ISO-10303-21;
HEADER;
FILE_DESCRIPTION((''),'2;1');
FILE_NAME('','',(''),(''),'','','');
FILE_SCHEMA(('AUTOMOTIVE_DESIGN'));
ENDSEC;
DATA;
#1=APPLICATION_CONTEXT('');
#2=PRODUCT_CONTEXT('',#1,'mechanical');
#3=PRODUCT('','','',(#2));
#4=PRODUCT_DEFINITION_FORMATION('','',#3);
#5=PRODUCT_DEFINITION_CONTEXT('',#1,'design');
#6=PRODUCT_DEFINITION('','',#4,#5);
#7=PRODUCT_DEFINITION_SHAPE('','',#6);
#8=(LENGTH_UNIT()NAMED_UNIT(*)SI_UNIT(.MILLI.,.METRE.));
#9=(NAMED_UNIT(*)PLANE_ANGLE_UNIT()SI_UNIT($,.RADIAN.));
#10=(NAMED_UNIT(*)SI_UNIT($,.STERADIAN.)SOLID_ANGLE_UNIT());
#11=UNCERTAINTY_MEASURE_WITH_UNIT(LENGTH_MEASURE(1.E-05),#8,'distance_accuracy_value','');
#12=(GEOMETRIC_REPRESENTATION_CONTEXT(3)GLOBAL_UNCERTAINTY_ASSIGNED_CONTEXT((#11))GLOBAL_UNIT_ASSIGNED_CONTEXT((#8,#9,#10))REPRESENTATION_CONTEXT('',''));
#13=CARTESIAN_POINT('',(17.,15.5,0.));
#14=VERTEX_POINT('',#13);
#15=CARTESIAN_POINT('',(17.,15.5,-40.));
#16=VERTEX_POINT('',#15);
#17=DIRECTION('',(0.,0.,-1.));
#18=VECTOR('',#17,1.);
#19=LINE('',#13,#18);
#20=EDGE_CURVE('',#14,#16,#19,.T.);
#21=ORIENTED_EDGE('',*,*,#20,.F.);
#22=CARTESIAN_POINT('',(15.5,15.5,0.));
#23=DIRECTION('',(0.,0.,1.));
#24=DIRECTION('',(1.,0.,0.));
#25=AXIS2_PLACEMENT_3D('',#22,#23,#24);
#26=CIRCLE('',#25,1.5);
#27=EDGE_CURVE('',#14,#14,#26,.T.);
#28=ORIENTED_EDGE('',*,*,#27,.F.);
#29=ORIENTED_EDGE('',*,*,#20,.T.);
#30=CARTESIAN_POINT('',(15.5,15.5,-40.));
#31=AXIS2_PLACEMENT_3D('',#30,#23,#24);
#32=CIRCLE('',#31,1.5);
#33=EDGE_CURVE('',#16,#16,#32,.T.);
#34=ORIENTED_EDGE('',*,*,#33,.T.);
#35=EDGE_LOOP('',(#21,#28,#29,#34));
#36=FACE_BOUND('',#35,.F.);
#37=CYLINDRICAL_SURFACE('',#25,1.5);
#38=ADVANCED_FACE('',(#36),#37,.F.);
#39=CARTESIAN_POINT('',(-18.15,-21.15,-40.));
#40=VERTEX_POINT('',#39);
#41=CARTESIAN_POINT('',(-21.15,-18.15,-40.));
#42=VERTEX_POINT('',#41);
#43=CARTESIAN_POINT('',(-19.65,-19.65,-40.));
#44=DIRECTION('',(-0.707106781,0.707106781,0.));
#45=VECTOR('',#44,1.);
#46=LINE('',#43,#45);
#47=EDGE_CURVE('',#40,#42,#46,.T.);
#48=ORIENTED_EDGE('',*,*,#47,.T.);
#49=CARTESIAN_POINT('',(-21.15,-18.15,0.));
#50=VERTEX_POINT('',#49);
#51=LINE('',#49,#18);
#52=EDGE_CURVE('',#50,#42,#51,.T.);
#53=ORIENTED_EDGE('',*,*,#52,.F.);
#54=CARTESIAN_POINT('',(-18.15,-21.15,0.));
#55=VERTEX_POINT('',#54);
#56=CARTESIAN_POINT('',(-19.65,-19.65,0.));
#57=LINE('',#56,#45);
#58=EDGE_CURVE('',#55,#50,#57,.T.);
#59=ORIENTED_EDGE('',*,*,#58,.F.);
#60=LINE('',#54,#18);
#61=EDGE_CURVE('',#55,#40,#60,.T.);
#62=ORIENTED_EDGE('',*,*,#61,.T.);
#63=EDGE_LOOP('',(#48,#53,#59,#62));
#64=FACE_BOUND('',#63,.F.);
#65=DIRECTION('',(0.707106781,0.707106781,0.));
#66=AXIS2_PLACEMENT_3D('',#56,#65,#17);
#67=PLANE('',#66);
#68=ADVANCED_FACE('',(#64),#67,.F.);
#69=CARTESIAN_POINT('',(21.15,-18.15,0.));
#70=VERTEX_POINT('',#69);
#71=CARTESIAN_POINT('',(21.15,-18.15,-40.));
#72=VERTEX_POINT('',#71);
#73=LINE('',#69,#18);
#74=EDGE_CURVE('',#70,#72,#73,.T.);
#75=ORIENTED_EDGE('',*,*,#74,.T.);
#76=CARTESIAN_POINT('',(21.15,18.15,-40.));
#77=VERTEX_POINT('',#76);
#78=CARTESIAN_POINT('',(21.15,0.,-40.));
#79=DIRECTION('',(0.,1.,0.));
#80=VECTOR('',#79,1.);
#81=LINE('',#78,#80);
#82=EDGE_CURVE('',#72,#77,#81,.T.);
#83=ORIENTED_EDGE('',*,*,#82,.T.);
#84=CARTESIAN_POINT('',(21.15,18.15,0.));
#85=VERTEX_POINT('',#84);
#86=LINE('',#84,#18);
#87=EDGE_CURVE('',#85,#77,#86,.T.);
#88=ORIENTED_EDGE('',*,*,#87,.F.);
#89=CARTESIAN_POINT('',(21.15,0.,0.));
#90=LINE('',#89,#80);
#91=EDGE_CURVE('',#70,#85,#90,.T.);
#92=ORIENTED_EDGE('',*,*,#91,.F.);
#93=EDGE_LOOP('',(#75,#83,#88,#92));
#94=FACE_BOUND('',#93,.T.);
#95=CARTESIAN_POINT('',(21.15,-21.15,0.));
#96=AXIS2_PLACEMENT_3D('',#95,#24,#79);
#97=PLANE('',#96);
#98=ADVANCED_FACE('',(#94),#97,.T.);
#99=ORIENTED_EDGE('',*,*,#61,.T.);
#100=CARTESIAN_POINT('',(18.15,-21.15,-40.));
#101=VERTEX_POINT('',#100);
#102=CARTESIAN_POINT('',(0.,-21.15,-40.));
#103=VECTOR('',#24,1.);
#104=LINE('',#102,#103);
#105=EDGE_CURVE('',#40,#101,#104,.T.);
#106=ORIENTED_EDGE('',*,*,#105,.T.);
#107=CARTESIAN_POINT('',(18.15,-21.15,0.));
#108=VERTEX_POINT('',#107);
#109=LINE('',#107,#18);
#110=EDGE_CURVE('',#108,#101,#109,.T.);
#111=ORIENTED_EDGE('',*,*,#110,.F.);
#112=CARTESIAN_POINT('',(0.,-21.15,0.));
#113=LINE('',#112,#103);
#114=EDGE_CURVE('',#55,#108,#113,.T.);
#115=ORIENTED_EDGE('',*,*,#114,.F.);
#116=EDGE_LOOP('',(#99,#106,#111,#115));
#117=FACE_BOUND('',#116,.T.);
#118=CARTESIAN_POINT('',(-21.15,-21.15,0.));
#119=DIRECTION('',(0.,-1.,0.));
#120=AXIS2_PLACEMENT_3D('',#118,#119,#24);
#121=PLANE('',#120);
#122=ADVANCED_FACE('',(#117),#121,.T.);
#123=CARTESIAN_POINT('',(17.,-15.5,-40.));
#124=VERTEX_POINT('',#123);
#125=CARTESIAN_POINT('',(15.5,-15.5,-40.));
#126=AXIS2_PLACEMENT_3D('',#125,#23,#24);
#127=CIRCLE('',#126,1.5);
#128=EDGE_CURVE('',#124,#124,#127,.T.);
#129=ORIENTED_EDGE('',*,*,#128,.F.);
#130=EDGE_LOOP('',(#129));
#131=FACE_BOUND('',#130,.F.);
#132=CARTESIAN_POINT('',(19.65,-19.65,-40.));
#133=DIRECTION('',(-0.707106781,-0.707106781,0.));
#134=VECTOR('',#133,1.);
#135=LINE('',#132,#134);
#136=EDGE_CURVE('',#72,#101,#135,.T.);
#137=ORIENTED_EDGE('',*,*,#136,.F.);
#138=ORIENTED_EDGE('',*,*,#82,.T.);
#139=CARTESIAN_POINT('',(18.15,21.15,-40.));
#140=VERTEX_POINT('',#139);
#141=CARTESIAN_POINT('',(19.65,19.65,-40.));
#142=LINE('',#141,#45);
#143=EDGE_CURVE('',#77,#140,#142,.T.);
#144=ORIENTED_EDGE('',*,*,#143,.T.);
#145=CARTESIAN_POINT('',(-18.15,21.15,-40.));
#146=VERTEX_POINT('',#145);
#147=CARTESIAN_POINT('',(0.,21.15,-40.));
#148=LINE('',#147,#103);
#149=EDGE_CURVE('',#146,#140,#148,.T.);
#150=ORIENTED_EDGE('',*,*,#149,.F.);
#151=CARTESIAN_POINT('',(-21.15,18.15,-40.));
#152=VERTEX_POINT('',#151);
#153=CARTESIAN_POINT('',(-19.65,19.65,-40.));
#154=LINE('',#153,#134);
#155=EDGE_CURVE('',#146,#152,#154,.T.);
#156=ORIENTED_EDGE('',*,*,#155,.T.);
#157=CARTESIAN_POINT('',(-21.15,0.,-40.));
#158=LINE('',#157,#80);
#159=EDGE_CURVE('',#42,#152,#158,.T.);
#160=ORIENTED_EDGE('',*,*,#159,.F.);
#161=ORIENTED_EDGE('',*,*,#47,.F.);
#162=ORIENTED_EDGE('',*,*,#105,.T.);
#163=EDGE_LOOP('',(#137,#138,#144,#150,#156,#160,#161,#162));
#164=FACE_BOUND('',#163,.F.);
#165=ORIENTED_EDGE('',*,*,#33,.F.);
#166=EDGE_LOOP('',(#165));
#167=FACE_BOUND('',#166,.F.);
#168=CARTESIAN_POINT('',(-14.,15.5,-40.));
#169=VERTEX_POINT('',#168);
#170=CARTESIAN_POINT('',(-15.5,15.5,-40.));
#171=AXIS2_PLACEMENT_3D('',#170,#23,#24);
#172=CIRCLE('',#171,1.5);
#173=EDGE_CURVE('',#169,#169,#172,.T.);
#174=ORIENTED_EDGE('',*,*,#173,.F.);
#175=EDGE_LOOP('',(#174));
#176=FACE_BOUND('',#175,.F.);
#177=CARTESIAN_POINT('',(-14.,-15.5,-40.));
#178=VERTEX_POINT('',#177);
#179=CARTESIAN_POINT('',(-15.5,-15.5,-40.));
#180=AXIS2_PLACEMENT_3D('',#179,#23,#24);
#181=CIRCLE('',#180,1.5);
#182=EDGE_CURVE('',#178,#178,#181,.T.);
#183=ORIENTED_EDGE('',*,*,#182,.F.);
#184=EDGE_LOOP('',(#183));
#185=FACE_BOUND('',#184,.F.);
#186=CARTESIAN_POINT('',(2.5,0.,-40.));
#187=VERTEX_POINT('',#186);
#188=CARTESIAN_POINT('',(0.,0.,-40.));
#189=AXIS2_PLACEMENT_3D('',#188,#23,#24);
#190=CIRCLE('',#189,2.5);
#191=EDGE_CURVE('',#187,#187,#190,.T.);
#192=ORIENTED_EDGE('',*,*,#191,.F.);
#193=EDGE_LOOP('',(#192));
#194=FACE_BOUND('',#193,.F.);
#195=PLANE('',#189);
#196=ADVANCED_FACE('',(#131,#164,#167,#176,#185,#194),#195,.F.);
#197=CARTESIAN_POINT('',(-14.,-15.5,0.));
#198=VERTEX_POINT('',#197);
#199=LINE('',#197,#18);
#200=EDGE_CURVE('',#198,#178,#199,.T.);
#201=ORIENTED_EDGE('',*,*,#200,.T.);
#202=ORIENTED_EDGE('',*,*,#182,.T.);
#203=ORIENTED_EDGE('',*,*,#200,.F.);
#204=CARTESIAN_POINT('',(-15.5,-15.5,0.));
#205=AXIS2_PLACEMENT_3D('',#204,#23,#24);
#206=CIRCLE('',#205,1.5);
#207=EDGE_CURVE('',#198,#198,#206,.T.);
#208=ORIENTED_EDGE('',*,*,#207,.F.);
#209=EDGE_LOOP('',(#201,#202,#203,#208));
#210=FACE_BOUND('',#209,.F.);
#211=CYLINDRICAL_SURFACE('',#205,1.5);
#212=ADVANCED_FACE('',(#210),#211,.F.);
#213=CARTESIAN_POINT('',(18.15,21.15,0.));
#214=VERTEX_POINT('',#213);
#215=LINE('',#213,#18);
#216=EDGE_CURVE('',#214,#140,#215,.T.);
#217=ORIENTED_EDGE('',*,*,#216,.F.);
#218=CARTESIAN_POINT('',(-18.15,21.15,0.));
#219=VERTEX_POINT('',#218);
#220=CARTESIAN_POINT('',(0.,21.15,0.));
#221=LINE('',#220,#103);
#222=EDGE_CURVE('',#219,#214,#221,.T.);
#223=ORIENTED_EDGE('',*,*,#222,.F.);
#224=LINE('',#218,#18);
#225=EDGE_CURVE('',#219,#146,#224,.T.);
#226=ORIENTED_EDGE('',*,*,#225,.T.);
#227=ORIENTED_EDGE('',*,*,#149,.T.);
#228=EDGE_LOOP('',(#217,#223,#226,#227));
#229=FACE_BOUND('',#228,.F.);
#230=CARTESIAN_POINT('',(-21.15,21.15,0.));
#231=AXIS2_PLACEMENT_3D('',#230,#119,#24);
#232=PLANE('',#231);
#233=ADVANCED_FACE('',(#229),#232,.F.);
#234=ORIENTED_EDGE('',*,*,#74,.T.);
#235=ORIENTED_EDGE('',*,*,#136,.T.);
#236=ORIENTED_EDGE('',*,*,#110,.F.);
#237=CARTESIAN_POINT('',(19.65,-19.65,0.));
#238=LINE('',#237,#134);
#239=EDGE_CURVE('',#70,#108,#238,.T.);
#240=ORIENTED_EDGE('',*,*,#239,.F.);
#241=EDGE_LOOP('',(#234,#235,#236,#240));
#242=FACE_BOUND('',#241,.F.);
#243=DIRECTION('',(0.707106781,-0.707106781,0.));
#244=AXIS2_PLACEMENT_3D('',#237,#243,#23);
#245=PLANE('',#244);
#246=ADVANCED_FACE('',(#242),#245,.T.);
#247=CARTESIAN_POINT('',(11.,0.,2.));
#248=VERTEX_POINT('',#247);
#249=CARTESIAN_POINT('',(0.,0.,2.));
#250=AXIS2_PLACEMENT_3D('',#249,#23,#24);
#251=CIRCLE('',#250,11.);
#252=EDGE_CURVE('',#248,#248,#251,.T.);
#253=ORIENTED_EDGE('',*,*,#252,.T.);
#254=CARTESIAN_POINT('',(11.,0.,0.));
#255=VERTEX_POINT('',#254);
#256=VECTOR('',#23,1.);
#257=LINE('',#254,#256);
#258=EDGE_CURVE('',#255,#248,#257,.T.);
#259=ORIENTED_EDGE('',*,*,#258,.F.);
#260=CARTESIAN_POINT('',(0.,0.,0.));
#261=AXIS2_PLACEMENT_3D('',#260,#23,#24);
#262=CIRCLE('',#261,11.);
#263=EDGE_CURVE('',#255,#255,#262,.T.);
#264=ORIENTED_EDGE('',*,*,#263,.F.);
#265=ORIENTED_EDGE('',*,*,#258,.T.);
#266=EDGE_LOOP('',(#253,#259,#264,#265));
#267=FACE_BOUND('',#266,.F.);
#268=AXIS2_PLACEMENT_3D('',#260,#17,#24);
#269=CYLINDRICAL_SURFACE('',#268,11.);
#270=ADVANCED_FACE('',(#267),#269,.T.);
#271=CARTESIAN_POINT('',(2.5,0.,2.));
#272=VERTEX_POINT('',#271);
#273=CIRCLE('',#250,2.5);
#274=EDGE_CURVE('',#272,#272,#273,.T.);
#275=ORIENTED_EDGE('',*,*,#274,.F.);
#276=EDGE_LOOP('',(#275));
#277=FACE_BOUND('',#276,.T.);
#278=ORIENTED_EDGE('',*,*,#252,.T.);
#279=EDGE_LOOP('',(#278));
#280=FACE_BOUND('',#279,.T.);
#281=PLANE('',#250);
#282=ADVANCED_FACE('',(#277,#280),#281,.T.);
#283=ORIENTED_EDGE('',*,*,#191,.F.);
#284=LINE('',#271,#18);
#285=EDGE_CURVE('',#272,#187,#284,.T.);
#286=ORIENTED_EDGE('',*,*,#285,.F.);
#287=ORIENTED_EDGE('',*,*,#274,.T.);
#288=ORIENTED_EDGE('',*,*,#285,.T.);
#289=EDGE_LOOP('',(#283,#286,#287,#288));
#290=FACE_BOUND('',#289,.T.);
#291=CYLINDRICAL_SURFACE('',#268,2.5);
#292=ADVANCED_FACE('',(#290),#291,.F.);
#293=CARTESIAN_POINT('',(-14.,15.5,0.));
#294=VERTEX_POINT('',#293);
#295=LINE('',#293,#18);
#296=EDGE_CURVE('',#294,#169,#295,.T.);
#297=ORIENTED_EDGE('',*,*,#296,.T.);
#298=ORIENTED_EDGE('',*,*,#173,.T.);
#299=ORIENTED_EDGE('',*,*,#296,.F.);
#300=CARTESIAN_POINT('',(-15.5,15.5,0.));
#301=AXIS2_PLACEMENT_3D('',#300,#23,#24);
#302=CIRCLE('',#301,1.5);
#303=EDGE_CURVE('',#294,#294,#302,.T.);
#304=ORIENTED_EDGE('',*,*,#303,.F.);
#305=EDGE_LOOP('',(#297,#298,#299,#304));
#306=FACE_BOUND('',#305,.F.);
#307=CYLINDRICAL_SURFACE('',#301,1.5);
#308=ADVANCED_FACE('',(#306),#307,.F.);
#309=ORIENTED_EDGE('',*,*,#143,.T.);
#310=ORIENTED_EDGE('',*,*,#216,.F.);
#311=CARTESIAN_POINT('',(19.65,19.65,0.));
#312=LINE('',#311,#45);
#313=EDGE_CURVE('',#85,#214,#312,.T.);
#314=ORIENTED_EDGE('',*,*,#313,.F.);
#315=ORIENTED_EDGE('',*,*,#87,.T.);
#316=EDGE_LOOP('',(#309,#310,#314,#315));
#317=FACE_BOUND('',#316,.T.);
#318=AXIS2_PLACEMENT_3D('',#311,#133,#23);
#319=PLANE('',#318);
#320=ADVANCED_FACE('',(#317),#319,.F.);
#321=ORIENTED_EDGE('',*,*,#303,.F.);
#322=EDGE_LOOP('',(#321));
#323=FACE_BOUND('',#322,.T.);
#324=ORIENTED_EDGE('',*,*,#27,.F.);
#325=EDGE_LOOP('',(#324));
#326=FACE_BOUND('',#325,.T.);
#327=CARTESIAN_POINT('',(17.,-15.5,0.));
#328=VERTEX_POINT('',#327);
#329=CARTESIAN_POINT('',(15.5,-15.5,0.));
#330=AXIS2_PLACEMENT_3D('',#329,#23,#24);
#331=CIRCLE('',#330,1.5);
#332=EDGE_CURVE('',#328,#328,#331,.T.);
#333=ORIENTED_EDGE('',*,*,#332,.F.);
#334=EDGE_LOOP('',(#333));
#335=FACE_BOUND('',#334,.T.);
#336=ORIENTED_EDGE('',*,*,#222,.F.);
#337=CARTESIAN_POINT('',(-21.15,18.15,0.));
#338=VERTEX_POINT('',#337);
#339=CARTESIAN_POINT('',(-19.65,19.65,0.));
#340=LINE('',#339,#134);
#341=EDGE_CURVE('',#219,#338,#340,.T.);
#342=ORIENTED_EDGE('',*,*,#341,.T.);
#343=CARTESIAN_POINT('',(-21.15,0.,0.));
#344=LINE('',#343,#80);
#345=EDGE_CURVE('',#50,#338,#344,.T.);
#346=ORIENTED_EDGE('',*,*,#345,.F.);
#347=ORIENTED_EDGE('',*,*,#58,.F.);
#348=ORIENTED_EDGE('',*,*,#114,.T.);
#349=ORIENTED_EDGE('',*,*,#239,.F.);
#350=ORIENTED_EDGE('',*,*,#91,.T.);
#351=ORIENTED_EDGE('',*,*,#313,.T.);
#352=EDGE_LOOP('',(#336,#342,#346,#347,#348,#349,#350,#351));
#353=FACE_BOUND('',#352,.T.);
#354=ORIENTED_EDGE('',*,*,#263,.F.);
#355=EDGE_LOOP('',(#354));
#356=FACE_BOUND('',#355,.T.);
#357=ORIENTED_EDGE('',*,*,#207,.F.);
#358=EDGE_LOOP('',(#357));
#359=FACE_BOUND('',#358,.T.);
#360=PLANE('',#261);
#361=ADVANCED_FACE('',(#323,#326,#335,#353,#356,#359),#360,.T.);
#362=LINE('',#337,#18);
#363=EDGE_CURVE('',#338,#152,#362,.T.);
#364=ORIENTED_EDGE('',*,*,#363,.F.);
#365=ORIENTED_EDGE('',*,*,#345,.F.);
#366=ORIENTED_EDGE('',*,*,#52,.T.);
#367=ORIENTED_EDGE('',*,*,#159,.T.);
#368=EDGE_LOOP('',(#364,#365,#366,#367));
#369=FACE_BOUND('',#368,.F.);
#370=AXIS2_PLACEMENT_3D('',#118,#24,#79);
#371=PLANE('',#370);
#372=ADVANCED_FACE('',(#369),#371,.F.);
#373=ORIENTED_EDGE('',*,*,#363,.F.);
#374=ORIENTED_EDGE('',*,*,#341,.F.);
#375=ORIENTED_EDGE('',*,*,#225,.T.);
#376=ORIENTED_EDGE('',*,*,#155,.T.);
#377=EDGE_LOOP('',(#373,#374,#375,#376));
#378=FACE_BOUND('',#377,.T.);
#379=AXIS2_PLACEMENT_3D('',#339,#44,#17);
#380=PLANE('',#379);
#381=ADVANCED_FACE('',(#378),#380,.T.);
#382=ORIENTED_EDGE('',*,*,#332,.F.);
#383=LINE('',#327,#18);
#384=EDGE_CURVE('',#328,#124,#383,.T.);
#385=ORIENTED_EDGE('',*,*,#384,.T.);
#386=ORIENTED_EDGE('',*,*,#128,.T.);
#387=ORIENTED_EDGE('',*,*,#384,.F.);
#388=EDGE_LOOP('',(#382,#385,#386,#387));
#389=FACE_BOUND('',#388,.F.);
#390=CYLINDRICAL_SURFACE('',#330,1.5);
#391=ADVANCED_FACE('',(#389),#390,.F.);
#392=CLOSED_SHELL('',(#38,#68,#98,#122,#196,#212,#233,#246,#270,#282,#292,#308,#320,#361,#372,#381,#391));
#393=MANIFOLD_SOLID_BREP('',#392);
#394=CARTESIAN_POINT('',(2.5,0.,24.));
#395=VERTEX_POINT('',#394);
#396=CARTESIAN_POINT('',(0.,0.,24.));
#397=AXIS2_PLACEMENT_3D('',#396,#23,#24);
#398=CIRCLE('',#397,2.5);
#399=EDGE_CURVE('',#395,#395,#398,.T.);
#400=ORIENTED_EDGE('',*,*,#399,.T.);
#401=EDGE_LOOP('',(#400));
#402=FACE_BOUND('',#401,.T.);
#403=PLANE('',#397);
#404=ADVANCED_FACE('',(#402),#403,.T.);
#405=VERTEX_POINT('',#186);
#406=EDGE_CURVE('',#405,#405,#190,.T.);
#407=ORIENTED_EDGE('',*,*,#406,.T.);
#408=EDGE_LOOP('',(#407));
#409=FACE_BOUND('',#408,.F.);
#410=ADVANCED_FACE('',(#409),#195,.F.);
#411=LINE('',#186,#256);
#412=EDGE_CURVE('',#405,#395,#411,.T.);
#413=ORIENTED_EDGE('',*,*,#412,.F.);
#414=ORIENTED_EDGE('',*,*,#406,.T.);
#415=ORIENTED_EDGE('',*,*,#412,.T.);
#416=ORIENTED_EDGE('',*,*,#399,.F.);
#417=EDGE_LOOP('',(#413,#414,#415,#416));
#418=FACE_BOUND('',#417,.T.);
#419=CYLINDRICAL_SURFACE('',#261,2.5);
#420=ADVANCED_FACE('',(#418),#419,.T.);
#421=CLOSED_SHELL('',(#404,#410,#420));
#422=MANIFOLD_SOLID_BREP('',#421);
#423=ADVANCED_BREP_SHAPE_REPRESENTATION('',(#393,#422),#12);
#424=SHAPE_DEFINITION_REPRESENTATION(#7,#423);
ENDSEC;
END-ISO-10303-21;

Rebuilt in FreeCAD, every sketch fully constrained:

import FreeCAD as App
import Part
import Sketcher


def edges_at(feature, points):
    """Names of the edges that pass closest to the given points."""
    edges = feature.Shape.Edges
    near = lambda p: min(range(len(edges)), key=lambda i: edges[i].distToShape(Part.Vertex(*p))[0])
    return sorted({f"Edge{near(p) + 1}" for p in points})


def add_polygon(sketch, points):
    """Adds a closed chain of lines whose ends are joined by coincident constraints."""
    first, n = sketch.GeometryCount, len(points)
    for a, b in zip(points, points[1:] + points[:1]):
        sketch.addGeometry(Part.LineSegment(App.Vector(*a, 0), App.Vector(*b, 0)), False)
    for i in range(n):
        sketch.addConstraint(Sketcher.Constraint("Coincident", first + i, 2, first + (i + 1) % n, 1))

doc = App.newDocument("Part")
body = doc.addObject("PartDesign::Body", "Body")

sketch1 = body.newObject("Sketcher::SketchObject", "Sketch")
sketch1.AttachmentSupport = (doc.getObject("XY_Plane"), [""])
sketch1.MapMode = "FlatFace"
add_polygon(sketch1, [(-21.1, 21.1), (-21.1, -21.1), (21.1, -21.1), (21.1, 21.1)])
sketch1.addGeometry(Part.Circle(App.Vector(0, 0, 0), App.Vector(0, 0, 1), 2.5), False)
sketch1.addConstraint(Sketcher.Constraint("Vertical", 0))
sketch1.addConstraint(Sketcher.Constraint("Horizontal", 1))
sketch1.addConstraint(Sketcher.Constraint("Vertical", 2))
sketch1.addConstraint(Sketcher.Constraint("Horizontal", 3))
sketch1.addConstraint(Sketcher.Constraint("Coincident", 4, 3, -1, 1))
sketch1.addConstraint(Sketcher.Constraint("Symmetric", 0, 2, 2, 2, -1, 1))
sketch1.addConstraint(Sketcher.Constraint("Equal", 3, 0))
sketch1.addConstraint(Sketcher.Constraint("Diameter", 4, 5.0))
sketch1.addConstraint(Sketcher.Constraint("DistanceX", 1, 1, 1, 2, 42.3))
pad1 = body.newObject("PartDesign::Pad", "Pad")
pad1.Profile = sketch1
pad1.Length = 40
pad1.Reversed = True

sketch2 = body.newObject("Sketcher::SketchObject", "Sketch001")
sketch2.AttachmentSupport = (doc.getObject("XY_Plane"), [""])
sketch2.MapMode = "FlatFace"
sketch2.addGeometry(Part.Circle(App.Vector(-15.5, 15.5, 0), App.Vector(0, 0, 1), 1.5), False)
sketch2.addGeometry(Part.Circle(App.Vector(-15.5, -15.5, 0), App.Vector(0, 0, 1), 1.5), False)
sketch2.addGeometry(Part.Circle(App.Vector(15.5, -15.5, 0), App.Vector(0, 0, 1), 1.5), False)
sketch2.addGeometry(Part.Circle(App.Vector(15.5, 15.5, 0), App.Vector(0, 0, 1), 1.5), False)
sketch2.addConstraint(Sketcher.Constraint("Equal", 0, 1))
sketch2.addConstraint(Sketcher.Constraint("Equal", 1, 2))
sketch2.addConstraint(Sketcher.Constraint("Equal", 2, 3))
sketch2.addConstraint(Sketcher.Constraint("Symmetric", 0, 3, 2, 3, -1, 1))
sketch2.addConstraint(Sketcher.Constraint("Symmetric", 1, 3, 3, 3, -1, 1))
sketch2.addConstraint(Sketcher.Constraint("Symmetric", 1, 3, 2, 3, -2))
sketch2.addConstraint(Sketcher.Constraint("Diameter", 0, 3.0))
sketch2.addConstraint(Sketcher.Constraint("DistanceY", 1, 3, 0, 3, 31.0))
sketch2.addConstraint(Sketcher.Constraint("DistanceX", 1, 3, 2, 3, 31.0))
pocket1 = body.newObject("PartDesign::Pocket", "Pocket")
pocket1.Profile = sketch2
pocket1.Length = 40

sketch3 = body.newObject("Sketcher::SketchObject", "Sketch002")
sketch3.AttachmentSupport = (doc.getObject("XY_Plane"), [""])
sketch3.MapMode = "FlatFace"
sketch3.addGeometry(Part.Circle(App.Vector(0, 0, 0), App.Vector(0, 0, 1), 11), False)
sketch3.addGeometry(Part.Circle(App.Vector(0, 0, 0), App.Vector(0, 0, 1), 2.5), False)
sketch3.addConstraint(Sketcher.Constraint("Coincident", 0, 3, -1, 1))
sketch3.addConstraint(Sketcher.Constraint("Coincident", 1, 3, -1, 1))
sketch3.addConstraint(Sketcher.Constraint("Diameter", 0, 22.0))
sketch3.addConstraint(Sketcher.Constraint("Diameter", 1, 5.0))
pad2 = body.newObject("PartDesign::Pad", "Pad001")
pad2.Profile = sketch3
pad2.Length = 2
doc.recompute()

chamfer = body.newObject("PartDesign::Chamfer", "Chamfer")
chamfer.Base = (pad2, edges_at(pad2, [
    (21.15, -21.15, -20),
    (21.15, 21.15, -20),
    (-21.15, -21.15, -20),
    (-21.15, 21.15, -20),
]))
chamfer.Size = 3
body2 = doc.addObject("PartDesign::Body", "Body001")

sketch4 = body2.newObject("Sketcher::SketchObject", "Sketch003")
sketch4.AttachmentSupport = (doc.getObject("XY_Plane001"), [""])
sketch4.MapMode = "FlatFace"
sketch4.addGeometry(Part.Circle(App.Vector(0, 0, 0), App.Vector(0, 0, 1), 2.5), False)
sketch4.addConstraint(Sketcher.Constraint("Coincident", 0, 3, -1, 1))
sketch4.addConstraint(Sketcher.Constraint("Diameter", 0, 5.0))
pad3 = body2.newObject("PartDesign::Pad", "Pad002")
pad3.Profile = sketch4
pad3.Type = "TwoLengths"
pad3.Length = 24
pad3.Length2 = 40

doc.recompute()
